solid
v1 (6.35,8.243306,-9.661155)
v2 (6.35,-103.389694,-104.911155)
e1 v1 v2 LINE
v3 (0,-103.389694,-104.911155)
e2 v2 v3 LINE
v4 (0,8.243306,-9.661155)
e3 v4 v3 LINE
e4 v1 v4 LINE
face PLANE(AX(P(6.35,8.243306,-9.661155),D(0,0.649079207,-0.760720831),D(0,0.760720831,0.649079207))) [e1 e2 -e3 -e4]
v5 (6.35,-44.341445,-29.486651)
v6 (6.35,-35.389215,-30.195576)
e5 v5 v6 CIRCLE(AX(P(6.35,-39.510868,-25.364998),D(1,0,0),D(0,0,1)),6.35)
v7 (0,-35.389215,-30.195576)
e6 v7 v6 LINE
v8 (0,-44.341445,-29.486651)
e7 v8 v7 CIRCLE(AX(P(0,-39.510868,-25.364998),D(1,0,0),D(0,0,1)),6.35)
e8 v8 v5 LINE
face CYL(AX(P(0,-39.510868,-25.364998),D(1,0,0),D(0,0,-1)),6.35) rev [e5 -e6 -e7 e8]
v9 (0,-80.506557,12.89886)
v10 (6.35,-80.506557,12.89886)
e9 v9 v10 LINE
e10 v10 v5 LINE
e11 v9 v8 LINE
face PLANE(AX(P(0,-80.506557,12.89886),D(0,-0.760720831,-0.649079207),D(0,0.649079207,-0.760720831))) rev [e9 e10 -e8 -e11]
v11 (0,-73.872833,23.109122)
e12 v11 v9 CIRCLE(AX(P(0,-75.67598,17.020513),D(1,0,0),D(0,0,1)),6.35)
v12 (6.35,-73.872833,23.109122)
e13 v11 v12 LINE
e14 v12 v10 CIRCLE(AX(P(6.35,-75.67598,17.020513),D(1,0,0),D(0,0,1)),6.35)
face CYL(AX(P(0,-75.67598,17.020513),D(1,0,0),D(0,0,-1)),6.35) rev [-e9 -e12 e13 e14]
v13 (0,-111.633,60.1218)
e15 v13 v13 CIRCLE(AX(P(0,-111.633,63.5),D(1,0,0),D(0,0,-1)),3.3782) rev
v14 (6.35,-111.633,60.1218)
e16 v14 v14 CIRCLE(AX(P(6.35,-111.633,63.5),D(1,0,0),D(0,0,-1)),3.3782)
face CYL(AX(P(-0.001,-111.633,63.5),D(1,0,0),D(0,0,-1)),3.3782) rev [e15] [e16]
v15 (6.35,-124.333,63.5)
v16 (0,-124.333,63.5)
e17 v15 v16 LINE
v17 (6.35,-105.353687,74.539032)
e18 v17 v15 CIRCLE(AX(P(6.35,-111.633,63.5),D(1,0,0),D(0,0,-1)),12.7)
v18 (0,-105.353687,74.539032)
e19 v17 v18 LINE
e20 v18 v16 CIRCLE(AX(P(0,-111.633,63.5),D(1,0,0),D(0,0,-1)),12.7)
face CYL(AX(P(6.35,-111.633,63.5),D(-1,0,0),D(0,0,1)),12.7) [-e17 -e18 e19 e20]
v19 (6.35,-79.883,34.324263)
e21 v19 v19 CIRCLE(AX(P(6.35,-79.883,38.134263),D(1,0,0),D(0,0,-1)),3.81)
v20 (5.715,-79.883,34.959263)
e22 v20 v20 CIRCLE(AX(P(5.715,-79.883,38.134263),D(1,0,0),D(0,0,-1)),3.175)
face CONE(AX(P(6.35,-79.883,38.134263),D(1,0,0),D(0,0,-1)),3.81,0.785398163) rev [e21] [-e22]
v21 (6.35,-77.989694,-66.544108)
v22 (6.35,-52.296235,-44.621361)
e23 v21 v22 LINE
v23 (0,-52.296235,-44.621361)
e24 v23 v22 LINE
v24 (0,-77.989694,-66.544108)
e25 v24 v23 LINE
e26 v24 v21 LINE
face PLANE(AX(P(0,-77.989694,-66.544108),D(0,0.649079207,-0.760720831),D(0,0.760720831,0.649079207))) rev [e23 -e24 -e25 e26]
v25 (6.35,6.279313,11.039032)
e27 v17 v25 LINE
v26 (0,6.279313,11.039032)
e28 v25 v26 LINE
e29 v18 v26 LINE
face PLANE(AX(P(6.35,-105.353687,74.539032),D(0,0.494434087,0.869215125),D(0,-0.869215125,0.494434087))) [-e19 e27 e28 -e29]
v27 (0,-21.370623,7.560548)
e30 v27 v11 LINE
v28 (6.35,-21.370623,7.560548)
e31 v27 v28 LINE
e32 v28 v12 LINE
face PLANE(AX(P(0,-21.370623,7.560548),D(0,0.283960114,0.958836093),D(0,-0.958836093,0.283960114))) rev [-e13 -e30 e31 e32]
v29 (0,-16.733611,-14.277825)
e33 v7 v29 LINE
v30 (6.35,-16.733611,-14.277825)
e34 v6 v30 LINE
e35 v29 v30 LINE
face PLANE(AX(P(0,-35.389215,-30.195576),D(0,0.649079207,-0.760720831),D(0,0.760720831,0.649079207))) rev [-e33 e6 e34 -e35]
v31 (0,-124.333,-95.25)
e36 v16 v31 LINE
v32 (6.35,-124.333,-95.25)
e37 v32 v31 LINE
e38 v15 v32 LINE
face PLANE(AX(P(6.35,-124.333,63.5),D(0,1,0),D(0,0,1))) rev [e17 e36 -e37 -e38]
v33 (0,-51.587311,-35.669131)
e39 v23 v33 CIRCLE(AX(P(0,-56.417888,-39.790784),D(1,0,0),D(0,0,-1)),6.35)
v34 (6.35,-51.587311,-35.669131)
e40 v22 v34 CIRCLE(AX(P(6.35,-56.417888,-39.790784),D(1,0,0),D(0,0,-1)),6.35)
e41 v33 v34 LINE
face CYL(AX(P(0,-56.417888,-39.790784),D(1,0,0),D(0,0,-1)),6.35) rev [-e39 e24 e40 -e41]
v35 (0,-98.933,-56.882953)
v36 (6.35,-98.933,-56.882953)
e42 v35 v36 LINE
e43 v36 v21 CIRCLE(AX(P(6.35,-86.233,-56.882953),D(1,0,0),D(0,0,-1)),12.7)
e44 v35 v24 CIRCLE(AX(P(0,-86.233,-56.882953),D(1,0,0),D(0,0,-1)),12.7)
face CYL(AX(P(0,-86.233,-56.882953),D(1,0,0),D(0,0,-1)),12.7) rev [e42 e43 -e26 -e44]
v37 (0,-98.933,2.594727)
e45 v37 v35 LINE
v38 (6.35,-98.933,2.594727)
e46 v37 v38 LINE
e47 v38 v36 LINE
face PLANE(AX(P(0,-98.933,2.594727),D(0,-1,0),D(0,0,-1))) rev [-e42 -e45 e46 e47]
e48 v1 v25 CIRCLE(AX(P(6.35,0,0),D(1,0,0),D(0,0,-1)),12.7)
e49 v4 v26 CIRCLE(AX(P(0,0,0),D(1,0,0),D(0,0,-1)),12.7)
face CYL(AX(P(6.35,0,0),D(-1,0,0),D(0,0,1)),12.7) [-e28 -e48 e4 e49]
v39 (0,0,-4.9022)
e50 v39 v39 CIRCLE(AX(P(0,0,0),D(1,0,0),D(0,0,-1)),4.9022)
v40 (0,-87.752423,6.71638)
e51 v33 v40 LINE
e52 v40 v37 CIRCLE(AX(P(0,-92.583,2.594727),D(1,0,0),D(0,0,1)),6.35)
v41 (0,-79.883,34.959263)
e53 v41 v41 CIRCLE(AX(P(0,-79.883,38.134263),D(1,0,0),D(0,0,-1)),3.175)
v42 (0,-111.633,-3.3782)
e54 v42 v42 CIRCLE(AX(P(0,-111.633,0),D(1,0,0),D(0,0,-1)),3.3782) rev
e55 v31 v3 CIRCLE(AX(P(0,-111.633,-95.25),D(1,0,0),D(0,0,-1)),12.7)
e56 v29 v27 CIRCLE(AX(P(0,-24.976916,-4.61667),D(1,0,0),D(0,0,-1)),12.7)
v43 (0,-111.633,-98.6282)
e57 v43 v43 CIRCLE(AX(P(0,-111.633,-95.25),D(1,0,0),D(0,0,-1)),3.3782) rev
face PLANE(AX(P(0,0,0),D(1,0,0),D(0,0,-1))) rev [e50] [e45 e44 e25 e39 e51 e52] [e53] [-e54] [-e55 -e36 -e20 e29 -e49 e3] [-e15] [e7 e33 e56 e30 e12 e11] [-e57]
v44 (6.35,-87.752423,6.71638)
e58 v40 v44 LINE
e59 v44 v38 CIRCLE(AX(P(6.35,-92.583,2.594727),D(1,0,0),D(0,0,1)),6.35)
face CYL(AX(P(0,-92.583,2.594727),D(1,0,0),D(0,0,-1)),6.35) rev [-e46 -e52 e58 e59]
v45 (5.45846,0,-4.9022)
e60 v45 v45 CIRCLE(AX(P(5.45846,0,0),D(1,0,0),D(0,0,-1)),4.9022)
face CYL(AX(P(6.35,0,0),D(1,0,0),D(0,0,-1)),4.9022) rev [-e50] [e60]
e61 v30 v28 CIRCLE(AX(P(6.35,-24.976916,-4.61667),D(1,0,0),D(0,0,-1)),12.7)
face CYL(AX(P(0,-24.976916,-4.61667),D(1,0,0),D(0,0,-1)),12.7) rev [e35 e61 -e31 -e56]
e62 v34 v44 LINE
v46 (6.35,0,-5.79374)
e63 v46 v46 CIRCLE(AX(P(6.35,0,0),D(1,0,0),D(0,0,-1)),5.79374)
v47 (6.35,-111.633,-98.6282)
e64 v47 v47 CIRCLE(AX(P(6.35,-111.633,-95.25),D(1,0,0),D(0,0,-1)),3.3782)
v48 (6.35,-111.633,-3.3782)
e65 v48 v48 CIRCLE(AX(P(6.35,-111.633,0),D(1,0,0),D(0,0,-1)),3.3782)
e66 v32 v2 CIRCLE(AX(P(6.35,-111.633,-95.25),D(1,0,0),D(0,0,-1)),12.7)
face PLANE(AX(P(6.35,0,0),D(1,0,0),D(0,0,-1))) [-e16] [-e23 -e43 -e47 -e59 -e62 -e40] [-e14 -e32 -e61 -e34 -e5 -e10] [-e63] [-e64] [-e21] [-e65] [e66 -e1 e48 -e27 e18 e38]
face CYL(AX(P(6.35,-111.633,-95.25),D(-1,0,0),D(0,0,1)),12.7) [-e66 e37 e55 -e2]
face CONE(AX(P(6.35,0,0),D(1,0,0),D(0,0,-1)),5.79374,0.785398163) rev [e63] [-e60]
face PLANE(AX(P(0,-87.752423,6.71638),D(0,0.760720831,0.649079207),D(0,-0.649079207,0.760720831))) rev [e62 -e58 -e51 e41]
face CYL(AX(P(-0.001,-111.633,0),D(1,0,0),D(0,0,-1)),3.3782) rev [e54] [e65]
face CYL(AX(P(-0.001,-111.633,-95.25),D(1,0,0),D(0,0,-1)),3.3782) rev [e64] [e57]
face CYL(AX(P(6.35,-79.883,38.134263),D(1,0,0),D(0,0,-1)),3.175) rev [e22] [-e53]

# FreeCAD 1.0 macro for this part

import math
import FreeCAD as App
import Part
import Sketcher
Q = App.Units.Quantity

doc = App.newDocument("Part")
body = doc.addObject("PartDesign::Body", "Body")

sketch1 = body.newObject("Sketcher::SketchObject", "Sketch")
sketch1.AttachmentSupport = (doc.getObject("YZ_Plane"), [""])
sketch1.MapMode = "FlatFace"
sketch1.addGeometry(Part.LineSegment(App.Vector(6.279313, 11.039032, 0), App.Vector(-105.353687, 74.539032, 0)), False)
sketch1.addGeometry(Part.ArcOfCircle(Part.Circle(App.Vector(-111.633, 63.5, 0), App.Vector(0, 0, 1), 12.7), math.radians(60.36756), math.radians(180)), False)
sketch1.addGeometry(Part.LineSegment(App.Vector(-124.333, 63.5, 0), App.Vector(-124.333, -95.25, 0)), False)
sketch1.addGeometry(Part.ArcOfCircle(Part.Circle(App.Vector(-111.633, -95.25, 0), App.Vector(0, 0, 1), 12.7), math.radians(180), math.radians(310.472214)), False)
sketch1.addGeometry(Part.LineSegment(App.Vector(-103.389694, -104.911155, 0), App.Vector(8.243306, -9.661155, 0)), False)
sketch1.addGeometry(Part.ArcOfCircle(Part.Circle(App.Vector(0, 0, 0), App.Vector(0, 0, 1), 12.7), math.radians(-49.527786), math.radians(60.36756)), False)
sketch1.addConstraint(Sketcher.Constraint("Tangent", 0, 2, 1, 1))
sketch1.addConstraint(Sketcher.Constraint("Tangent", 1, 2, 2, 1))
sketch1.addConstraint(Sketcher.Constraint("Tangent", 2, 2, 3, 1))
sketch1.addConstraint(Sketcher.Constraint("Tangent", 3, 2, 4, 1))
sketch1.addConstraint(Sketcher.Constraint("Tangent", 4, 2, 5, 1))
sketch1.addConstraint(Sketcher.Constraint("Tangent", 5, 2, 0, 1))
sketch1.addConstraint(Sketcher.Constraint("Vertical", 2))
sketch1.addConstraint(Sketcher.Constraint("Coincident", 5, 3, -1, 1))
sketch1.addConstraint(Sketcher.Constraint("Equal", 1, 3))
sketch1.addConstraint(Sketcher.Constraint("Equal", 3, 5))
sketch1.addConstraint(Sketcher.Constraint("Radius", 1, Q("0.5 in")))
sketch1.addConstraint(Sketcher.Constraint("DistanceY", 2, 2, 2, 1, Q("6.25 in")))
sketch1.addConstraint(Sketcher.Constraint("DistanceY", -1, 1, 1, 3, Q("2.5 in")))
sketch1.addConstraint(Sketcher.Constraint("DistanceX", 1, 3, -1, 1, Q("4.395 in")))
pad1 = body.newObject("PartDesign::Pad", "Pad")
pad1.Profile = sketch1
pad1.Length = Q("0.25 in")

sketch2 = body.newObject("Sketcher::SketchObject", "Sketch001")
sketch2.AttachmentSupport = (doc.getObject("YZ_Plane"), [""])
sketch2.MapMode = "FlatFace"
sketch2.AttachmentOffset = App.Placement(App.Vector(0, 0, 0.25 * 25.4), App.Rotation())
sketch2.addGeometry(Part.Circle(App.Vector(-111.633, 63.5, 0), App.Vector(0, 0, 1), 3.3782), False)
sketch2.addConstraint(Sketcher.Constraint("Diameter", 0, Q("0.266 in")))
sketch2.addConstraint(Sketcher.Constraint("DistanceY", -1, 1, 0, 3, Q("2.5 in")))
sketch2.addConstraint(Sketcher.Constraint("DistanceX", 0, 3, -1, 1, Q("4.395 in")))
pocket1 = body.newObject("PartDesign::Pocket", "Pocket")
pocket1.Profile = sketch2
pocket1.Type = "UpToFirst"

sketch3 = body.newObject("Sketcher::SketchObject", "Sketch002")
sketch3.AttachmentSupport = (doc.getObject("YZ_Plane"), [""])
sketch3.MapMode = "FlatFace"
sketch3.AttachmentOffset = App.Placement(App.Vector(0, 0, 0.25 * 25.4), App.Rotation())
sketch3.addGeometry(Part.Circle(App.Vector(-111.633, 0, 0), App.Vector(0, 0, 1), 3.3782), False)
sketch3.addConstraint(Sketcher.Constraint("PointOnObject", 0, 3, -1))
sketch3.addConstraint(Sketcher.Constraint("Diameter", 0, Q("0.266 in")))
sketch3.addConstraint(Sketcher.Constraint("DistanceX", 0, 3, -1, 1, Q("4.395 in")))
pocket2 = body.newObject("PartDesign::Pocket", "Pocket001")
pocket2.Profile = sketch3
pocket2.Type = "UpToFirst"

sketch4 = body.newObject("Sketcher::SketchObject", "Sketch003")
sketch4.AttachmentSupport = (doc.getObject("YZ_Plane"), [""])
sketch4.MapMode = "FlatFace"
sketch4.AttachmentOffset = App.Placement(App.Vector(0, 0, 0.25 * 25.4), App.Rotation())
sketch4.addGeometry(Part.Circle(App.Vector(-111.633, -95.25, 0), App.Vector(0, 0, 1), 3.3782), False)
sketch4.addConstraint(Sketcher.Constraint("Diameter", 0, Q("0.266 in")))
sketch4.addConstraint(Sketcher.Constraint("DistanceY", 0, 3, -1, 1, Q("3.75 in")))
sketch4.addConstraint(Sketcher.Constraint("DistanceX", 0, 3, -1, 1, Q("4.395 in")))
pocket3 = body.newObject("PartDesign::Pocket", "Pocket002")
pocket3.Profile = sketch4
pocket3.Type = "UpToFirst"

sketch5 = body.newObject("Sketcher::SketchObject", "Sketch004")
sketch5.AttachmentSupport = (doc.getObject("YZ_Plane"), [""])
sketch5.MapMode = "FlatFace"
sketch5.AttachmentOffset = App.Placement(App.Vector(0, 0, 0.25 * 25.4), App.Rotation())
sketch5.addGeometry(Part.Circle(App.Vector(0, 0, 0), App.Vector(0, 0, 1), 4.9022), False)
sketch5.addConstraint(Sketcher.Constraint("Coincident", 0, 3, -1, 1))
sketch5.addConstraint(Sketcher.Constraint("Diameter", 0, Q("0.386 in")))
doc.recompute()
hole = body.newObject("PartDesign::Hole", "Hole")
hole.Profile = sketch5
hole.ThreadType = "None"
hole.Diameter = Q("0.386 in")
hole.DepthType = "ThroughAll"
hole.HoleCutType = "Countersink"
hole.HoleCutDiameter = Q("0.4562 in")
hole.HoleCutCountersinkAngle = 90

sketch6 = body.newObject("Sketcher::SketchObject", "Sketch005")
sketch6.AttachmentSupport = (doc.getObject("YZ_Plane"), [""])
sketch6.MapMode = "FlatFace"
sketch6.AttachmentOffset = App.Placement(App.Vector(0, 0, 0.25 * 25.4), App.Rotation())
sketch6.addGeometry(Part.Circle(App.Vector(-79.883, 38.134263, 0), App.Vector(0, 0, 1), 3.175), False)
sketch6.addConstraint(Sketcher.Constraint("Diameter", 0, Q("0.25 in")))
sketch6.addConstraint(Sketcher.Constraint("DistanceX", 0, 3, -1, 1, Q("3.145 in")))
sketch6.addConstraint(Sketcher.Constraint("DistanceY", -1, 1, 0, 3, 38.134263))
doc.recompute()
hole2 = body.newObject("PartDesign::Hole", "Hole001")
hole2.Profile = sketch6
hole2.ThreadType = "None"
hole2.Diameter = Q("0.25 in")
hole2.DepthType = "ThroughAll"
hole2.HoleCutType = "Countersink"
hole2.HoleCutDiameter = Q("0.3 in")
hole2.HoleCutCountersinkAngle = 90

sketch7 = body.newObject("Sketcher::SketchObject", "Sketch006")
sketch7.AttachmentSupport = (doc.getObject("YZ_Plane"), [""])
sketch7.MapMode = "FlatFace"
sketch7.AttachmentOffset = App.Placement(App.Vector(0, 0, 0.25 * 25.4), App.Rotation())
sketch7.addGeometry(Part.LineSegment(App.Vector(-21.370623, 7.560548, 0), App.Vector(-73.872833, 23.109122, 0)), False)
sketch7.addGeometry(Part.ArcOfCircle(Part.Circle(App.Vector(-75.67598, 17.020513, 0), App.Vector(0, 0, 1), 6.35), math.radians(73.5033), math.radians(220.472214)), False)
sketch7.addGeometry(Part.LineSegment(App.Vector(-80.506557, 12.89886, 0), App.Vector(-44.341445, -29.486651, 0)), False)
sketch7.addGeometry(Part.ArcOfCircle(Part.Circle(App.Vector(-39.510868, -25.364998, 0), App.Vector(0, 0, 1), 6.35), math.radians(-139.527786), math.radians(-49.527786)), False)
sketch7.addGeometry(Part.LineSegment(App.Vector(-35.389215, -30.195576, 0), App.Vector(-16.733611, -14.277825, 0)), False)
sketch7.addGeometry(Part.ArcOfCircle(Part.Circle(App.Vector(-24.976916, -4.61667, 0), App.Vector(0, 0, 1), 12.7), math.radians(-49.527786), math.radians(73.5033)), False)
sketch7.addGeometry(Part.LineSegment(App.Vector(-98.933, 2.594727, 0), App.Vector(-98.933, -56.882953, 0)), False)
sketch7.addGeometry(Part.ArcOfCircle(Part.Circle(App.Vector(-86.233, -56.882953, 0), App.Vector(0, 0, 1), 12.7), math.radians(180), math.radians(310.472214)), False)
sketch7.addGeometry(Part.LineSegment(App.Vector(-77.989694, -66.544108, 0), App.Vector(-52.296235, -44.621361, 0)), False)
sketch7.addGeometry(Part.ArcOfCircle(Part.Circle(App.Vector(-56.417888, -39.790784, 0), App.Vector(0, 0, 1), 6.35), math.radians(-49.527786), math.radians(40.472214)), False)
sketch7.addGeometry(Part.LineSegment(App.Vector(-51.587311, -35.669131, 0), App.Vector(-87.752423, 6.71638, 0)), False)
sketch7.addGeometry(Part.ArcOfCircle(Part.Circle(App.Vector(-92.583, 2.594727, 0), App.Vector(0, 0, 1), 6.35), math.radians(40.472214), math.radians(180)), False)
sketch7.addConstraint(Sketcher.Constraint("Tangent", 0, 2, 1, 1))
sketch7.addConstraint(Sketcher.Constraint("Tangent", 1, 2, 2, 1))
sketch7.addConstraint(Sketcher.Constraint("Tangent", 2, 2, 3, 1))
sketch7.addConstraint(Sketcher.Constraint("Tangent", 3, 2, 4, 1))
sketch7.addConstraint(Sketcher.Constraint("Tangent", 4, 2, 5, 1))
sketch7.addConstraint(Sketcher.Constraint("Tangent", 5, 2, 0, 1))
sketch7.addConstraint(Sketcher.Constraint("Tangent", 6, 2, 7, 1))
sketch7.addConstraint(Sketcher.Constraint("Tangent", 7, 2, 8, 1))
sketch7.addConstraint(Sketcher.Constraint("Tangent", 8, 2, 9, 1))
sketch7.addConstraint(Sketcher.Constraint("Tangent", 9, 2, 10, 1))
sketch7.addConstraint(Sketcher.Constraint("Tangent", 10, 2, 11, 1))
sketch7.addConstraint(Sketcher.Constraint("Tangent", 11, 2, 6, 1))
sketch7.addConstraint(Sketcher.Constraint("Vertical", 6))
sketch7.addConstraint(Sketcher.Constraint("Equal", 1, 3))
sketch7.addConstraint(Sketcher.Constraint("Equal", 5, 7))
sketch7.addConstraint(Sketcher.Constraint("Equal", 3, 9))
sketch7.addConstraint(Sketcher.Constraint("Equal", 9, 11))
sketch7.addConstraint(Sketcher.Constraint("Perpendicular", 2, 4))
sketch7.addConstraint(Sketcher.Constraint("Parallel", 4, 8))
sketch7.addConstraint(Sketcher.Constraint("Perpendicular", 8, 10))
sketch7.addConstraint(Sketcher.Constraint("Equal", 2, 10))
sketch7.addConstraint(Sketcher.Constraint("Radius", 5, Q("0.5 in")))
sketch7.addConstraint(Sketcher.Constraint("Radius", 1, Q("0.25 in")))
sketch7.addConstraint(Sketcher.Constraint("DistanceX", 7, 3, -1, 1, Q("3.395 in")))
sketch7.addConstraint(Sketcher.Constraint("DistanceY", 6, 2, 6, 1, 59.47768))
sketch7.addConstraint(Sketcher.Constraint("DistanceY", 3, 3, -1, 1, 25.364998))
sketch7.addConstraint(Sketcher.Constraint("DistanceY", 7, 3, 2, 2, 27.396302))
sketch7.addConstraint(Sketcher.Constraint("DistanceX", 3, 2, 5, 3, 10.412298))
sketch7.addConstraint(Sketcher.Constraint("DistanceY", 2, 2, 5, 2, 37.0472))
sketch7.addConstraint(Sketcher.Constraint("DistanceX", 1, 3, -1, 1, 75.67598))
pocket4 = body.newObject("PartDesign::Pocket", "Pocket003")
pocket4.Profile = sketch7
pocket4.Type = "ThroughAll"

doc.recompute()
